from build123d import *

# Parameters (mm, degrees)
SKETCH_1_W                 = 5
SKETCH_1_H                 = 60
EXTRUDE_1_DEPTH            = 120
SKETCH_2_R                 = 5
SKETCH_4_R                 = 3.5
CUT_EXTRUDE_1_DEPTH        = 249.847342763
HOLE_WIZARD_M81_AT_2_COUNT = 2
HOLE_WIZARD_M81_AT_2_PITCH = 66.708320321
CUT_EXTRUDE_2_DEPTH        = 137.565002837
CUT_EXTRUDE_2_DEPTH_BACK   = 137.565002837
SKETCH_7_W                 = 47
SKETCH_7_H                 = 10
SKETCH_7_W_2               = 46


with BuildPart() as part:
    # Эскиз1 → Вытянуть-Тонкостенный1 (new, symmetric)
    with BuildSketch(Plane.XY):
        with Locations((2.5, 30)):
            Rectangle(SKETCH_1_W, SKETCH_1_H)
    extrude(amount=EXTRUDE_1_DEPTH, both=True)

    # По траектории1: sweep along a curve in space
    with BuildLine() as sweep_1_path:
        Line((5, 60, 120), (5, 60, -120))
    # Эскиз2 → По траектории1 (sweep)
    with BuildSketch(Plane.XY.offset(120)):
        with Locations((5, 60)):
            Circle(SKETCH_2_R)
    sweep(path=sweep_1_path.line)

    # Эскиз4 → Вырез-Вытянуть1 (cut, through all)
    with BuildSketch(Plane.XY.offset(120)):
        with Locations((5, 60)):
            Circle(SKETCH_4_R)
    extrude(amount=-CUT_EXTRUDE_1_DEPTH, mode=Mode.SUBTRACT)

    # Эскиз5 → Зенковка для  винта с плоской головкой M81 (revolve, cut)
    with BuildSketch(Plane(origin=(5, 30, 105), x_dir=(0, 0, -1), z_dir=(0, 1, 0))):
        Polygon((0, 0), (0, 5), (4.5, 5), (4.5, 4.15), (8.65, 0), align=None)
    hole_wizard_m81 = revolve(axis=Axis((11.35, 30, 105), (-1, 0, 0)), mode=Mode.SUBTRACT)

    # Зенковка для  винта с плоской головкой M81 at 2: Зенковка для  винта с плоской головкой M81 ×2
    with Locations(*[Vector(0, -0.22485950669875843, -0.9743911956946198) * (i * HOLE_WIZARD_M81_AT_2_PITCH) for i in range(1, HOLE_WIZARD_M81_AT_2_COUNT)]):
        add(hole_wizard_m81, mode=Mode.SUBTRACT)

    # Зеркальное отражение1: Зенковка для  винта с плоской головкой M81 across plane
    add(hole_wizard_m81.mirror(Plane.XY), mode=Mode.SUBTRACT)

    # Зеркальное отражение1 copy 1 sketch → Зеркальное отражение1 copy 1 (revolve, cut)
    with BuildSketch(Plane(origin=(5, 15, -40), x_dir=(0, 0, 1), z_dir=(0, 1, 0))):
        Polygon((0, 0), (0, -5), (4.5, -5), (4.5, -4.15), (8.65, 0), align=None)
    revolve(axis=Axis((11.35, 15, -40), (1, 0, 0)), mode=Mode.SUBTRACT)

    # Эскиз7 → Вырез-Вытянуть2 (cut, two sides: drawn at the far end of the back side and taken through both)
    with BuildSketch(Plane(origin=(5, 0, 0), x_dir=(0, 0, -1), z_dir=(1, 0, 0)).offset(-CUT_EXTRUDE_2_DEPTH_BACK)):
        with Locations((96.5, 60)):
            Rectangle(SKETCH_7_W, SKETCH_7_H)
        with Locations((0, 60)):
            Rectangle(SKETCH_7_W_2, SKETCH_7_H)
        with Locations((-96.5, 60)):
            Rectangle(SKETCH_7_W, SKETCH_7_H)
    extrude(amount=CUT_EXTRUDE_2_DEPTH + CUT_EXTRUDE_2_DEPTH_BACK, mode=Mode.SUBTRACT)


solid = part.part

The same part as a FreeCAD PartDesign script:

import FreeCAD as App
import Part
import Sketcher
Q = App.Units.Quantity

doc = App.newDocument("Part")
body = doc.addObject("PartDesign::Body", "Body")

sketch1 = doc.addObject("Sketcher::SketchObject", "Sketch")
body.addObject(sketch1)
sketch1.AttachmentSupport = (doc.XY_Plane, [""])
sketch1.MapMode = "FlatFace"
sketch1.addGeometry(Part.LineSegment(App.Vector(0, 60, 0), App.Vector(0, 0, 0)), False)
sketch1.addGeometry(Part.LineSegment(App.Vector(0, 0, 0), App.Vector(5, 0, 0)), False)
sketch1.addGeometry(Part.LineSegment(App.Vector(5, 0, 0), App.Vector(5, 60, 0)), False)
sketch1.addGeometry(Part.LineSegment(App.Vector(5, 60, 0), App.Vector(0, 60, 0)), False)
sketch1.addConstraint(Sketcher.Constraint("Coincident", 0, 2, 1, 1))
sketch1.addConstraint(Sketcher.Constraint("Coincident", 1, 2, 2, 1))
sketch1.addConstraint(Sketcher.Constraint("Coincident", 2, 2, 3, 1))
sketch1.addConstraint(Sketcher.Constraint("Coincident", 3, 2, 0, 1))
sketch1.addConstraint(Sketcher.Constraint("Vertical", 0))
sketch1.addConstraint(Sketcher.Constraint("Horizontal", 1))
sketch1.addConstraint(Sketcher.Constraint("Vertical", 2))
sketch1.addConstraint(Sketcher.Constraint("Horizontal", 3))
sketch1.addConstraint(Sketcher.Constraint("Coincident", 0, 2, -1, 1))
sketch1.addConstraint(Sketcher.Constraint("DistanceX", 1, 1, 1, 2, Q("5 mm")))
sketch1.addConstraint(Sketcher.Constraint("DistanceY", 0, 2, 0, 1, Q("60 mm")))
pad1 = doc.addObject("PartDesign::Pad", "Pad")
body.addObject(pad1)
pad1.Profile = sketch1
pad1.Length = 240
pad1.Midplane = True

sketch2 = doc.addObject("Sketcher::SketchObject", "Sketch001")
body.addObject(sketch2)
sketch2.AttachmentSupport = (doc.XY_Plane, [""])
sketch2.MapMode = "FlatFace"
sketch2.AttachmentOffset = App.Placement(App.Vector(0, 0, 120), App.Rotation())
sketch2.addGeometry(Part.Circle(App.Vector(5, 60, 0), App.Vector(0, 0, 1), 5), False)
sketch2.addConstraint(Sketcher.Constraint("Diameter", 0, Q("10 mm")))
sketch2.addConstraint(Sketcher.Constraint("DistanceX", -1, 1, 0, 3, Q("5 mm")))
sketch2.addConstraint(Sketcher.Constraint("DistanceY", -1, 1, 0, 3, Q("60 mm")))

sketch3 = doc.addObject("Sketcher::SketchObject", "Sketch002")
body.addObject(sketch3)
sketch3.AttachmentSupport = (doc.XZ_Plane, [""])
sketch3.MapMode = "FlatFace"
sketch3.AttachmentOffset = App.Placement(App.Vector(0, 0, -60), App.Rotation())
sketch3.addGeometry(Part.LineSegment(App.Vector(5, 120, 0), App.Vector(5, -120, 0)), False)
sketch3.addConstraint(Sketcher.Constraint("Vertical", 0))
sketch3.addConstraint(Sketcher.Constraint("DistanceY", 0, 2, 0, 1, Q("240 mm")))
sketch3.addConstraint(Sketcher.Constraint("DistanceX", -1, 1, 0, 1, Q("5 mm")))
sketch3.addConstraint(Sketcher.Constraint("DistanceY", -1, 1, 0, 1, Q("120 mm")))
doc.recompute()

additivepipe = doc.addObject("PartDesign::AdditivePipe", "AdditivePipe")
body.addObject(additivepipe)
additivepipe.Profile = sketch2
additivepipe.Spine = (sketch3, ["Edge1"])

sketch4 = doc.addObject("Sketcher::SketchObject", "Sketch003")
body.addObject(sketch4)
sketch4.AttachmentSupport = (doc.XY_Plane, [""])
sketch4.MapMode = "FlatFace"
sketch4.AttachmentOffset = App.Placement(App.Vector(0, 0, 120), App.Rotation())
sketch4.addGeometry(Part.Circle(App.Vector(5, 60, 0), App.Vector(0, 0, 1), 3.5), False)
sketch4.addConstraint(Sketcher.Constraint("Diameter", 0, Q("7 mm")))
sketch4.addConstraint(Sketcher.Constraint("DistanceX", -1, 1, 0, 3, Q("5 mm")))
sketch4.addConstraint(Sketcher.Constraint("DistanceY", -1, 1, 0, 3, Q("60 mm")))
pocket1 = doc.addObject("PartDesign::Pocket", "Pocket")
body.addObject(pocket1)
pocket1.Profile = sketch4
pocket1.Type = "ThroughAll"

sketch5 = doc.addObject("Sketcher::SketchObject", "Sketch004")
body.addObject(sketch5)
sketch5.AttachmentSupport = (doc.XZ_Plane, [""])
sketch5.MapMode = "FlatFace"
sketch5.AttachmentOffset = App.Placement(App.Vector(0, 0, -30), App.Rotation())
sketch5.addGeometry(Part.LineSegment(App.Vector(0, 105, 0), App.Vector(5, 105, 0)), False)
sketch5.addGeometry(Part.LineSegment(App.Vector(5, 105, 0), App.Vector(5, 96.3, 0)), False)
sketch5.addGeometry(Part.LineSegment(App.Vector(5, 96.3, 0), App.Vector(0.8, 100.5, 0)), False)
sketch5.addGeometry(Part.LineSegment(App.Vector(0.8, 100.5, 0), App.Vector(0, 100.5, 0)), False)
sketch5.addGeometry(Part.LineSegment(App.Vector(0, 100.5, 0), App.Vector(0, 105, 0)), False)
sketch5.addGeometry(Part.LineSegment(App.Vector(5, 105, 0), App.Vector(0, 105, 0)), True)
sketch5.addConstraint(Sketcher.Constraint("Coincident", 0, 2, 1, 1))
sketch5.addConstraint(Sketcher.Constraint("Coincident", 1, 2, 2, 1))
sketch5.addConstraint(Sketcher.Constraint("Coincident", 2, 2, 3, 1))
sketch5.addConstraint(Sketcher.Constraint("Coincident", 3, 2, 4, 1))
sketch5.addConstraint(Sketcher.Constraint("Coincident", 4, 2, 0, 1))
sketch5.addConstraint(Sketcher.Constraint("Horizontal", 0))
sketch5.addConstraint(Sketcher.Constraint("Vertical", 1))
sketch5.addConstraint(Sketcher.Constraint("Horizontal", 3))
sketch5.addConstraint(Sketcher.Constraint("Vertical", 4))
sketch5.addConstraint(Sketcher.Constraint("Horizontal", 5))
sketch5.addConstraint(Sketcher.Constraint("Coincident", 5, 1, 0, 2))
sketch5.addConstraint(Sketcher.Constraint("PointOnObject", 3, 2, -2))
sketch5.addConstraint(Sketcher.Constraint("PointOnObject", 5, 2, -2))
sketch5.addConstraint(Sketcher.Constraint("DistanceX", 0, 1, 0, 2, Q("5 mm")))
sketch5.addConstraint(Sketcher.Constraint("Angle", 2, Q("135 deg")))
sketch5.addConstraint(Sketcher.Constraint("DistanceY", 4, 1, 4, 2, Q("4.5 mm")))
sketch5.addConstraint(Sketcher.Constraint("DistanceY", -1, 1, 0, 2, Q("105 mm")))
sketch5.addConstraint(Sketcher.Constraint("DistanceX", 3, 2, 3, 1, Q("0.85 mm")))
groove = doc.addObject("PartDesign::Groove", "Groove")
body.addObject(groove)
groove.Profile = sketch5
groove.ReferenceAxis = (sketch5, ["Axis0"])
groove.Angle = 360
doc.recompute()

datumline = doc.addObject("PartDesign::Line", "DatumLine")
body.addObject(datumline)
datumline.Placement = App.Placement(App.Vector(0, 0, 0), App.Rotation(App.Vector(0, 0, 1), App.Vector(0, -0.224859507, -0.974391196)))
linearpattern = doc.addObject("PartDesign::LinearPattern", "LinearPattern")
body.addObject(linearpattern)
linearpattern.Originals = [groove]
linearpattern.Direction = (datumline, [""])
linearpattern.Mode = "offset"
linearpattern.Offset = 66.70832
linearpattern.Occurrences = 2
body.Tip = linearpattern
doc.recompute()

mirrored = doc.addObject("PartDesign::Mirrored", "Mirrored")
body.addObject(mirrored)
mirrored.Originals = [groove]
mirrored.MirrorPlane = (doc.XY_Plane, [""])
body.Tip = mirrored

sketch6 = doc.addObject("Sketcher::SketchObject", "Sketch005")
body.addObject(sketch6)
sketch6.AttachmentSupport = (doc.XZ_Plane, [""])
sketch6.MapMode = "FlatFace"
sketch6.AttachmentOffset = App.Placement(App.Vector(0, 0, -15), App.Rotation())
sketch6.addGeometry(Part.LineSegment(App.Vector(5, -40, 0), App.Vector(0, -40, 0)), False)
sketch6.addGeometry(Part.LineSegment(App.Vector(0, -40, 0), App.Vector(0, -35.5, 0)), False)
sketch6.addGeometry(Part.LineSegment(App.Vector(0, -35.5, 0), App.Vector(0.8, -35.5, 0)), False)
sketch6.addGeometry(Part.LineSegment(App.Vector(0.8, -35.5, 0), App.Vector(5, -31.4, 0)), False)
sketch6.addGeometry(Part.LineSegment(App.Vector(5, -31.4, 0), App.Vector(5, -40, 0)), False)
sketch6.addGeometry(Part.LineSegment(App.Vector(0, -40, 0), App.Vector(5, -40, 0)), True)
sketch6.addConstraint(Sketcher.Constraint("Coincident", 0, 2, 1, 1))
sketch6.addConstraint(Sketcher.Constraint("Coincident", 1, 2, 2, 1))
sketch6.addConstraint(Sketcher.Constraint("Coincident", 2, 2, 3, 1))
sketch6.addConstraint(Sketcher.Constraint("Coincident", 3, 2, 4, 1))
sketch6.addConstraint(Sketcher.Constraint("Coincident", 4, 2, 0, 1))
sketch6.addConstraint(Sketcher.Constraint("Horizontal", 0))
sketch6.addConstraint(Sketcher.Constraint("Vertical", 1))
sketch6.addConstraint(Sketcher.Constraint("Horizontal", 2))
sketch6.addConstraint(Sketcher.Constraint("Vertical", 4))
sketch6.addConstraint(Sketcher.Constraint("Horizontal", 5))
sketch6.addConstraint(Sketcher.Constraint("Coincident", 5, 1, 0, 2))
sketch6.addConstraint(Sketcher.Constraint("PointOnObject", 0, 2, -2))
sketch6.addConstraint(Sketcher.Constraint("Vertical", 3, 2, 5, 2))
sketch6.addConstraint(Sketcher.Constraint("DistanceX", 0, 2, 0, 1, Q("5 mm")))
sketch6.addConstraint(Sketcher.Constraint("Angle", 3, Q("45 deg")))
sketch6.addConstraint(Sketcher.Constraint("DistanceY", 1, 1, 1, 2, Q("4.5 mm")))
sketch6.addConstraint(Sketcher.Constraint("DistanceY", 0, 2, -1, 1, Q("40 mm")))
sketch6.addConstraint(Sketcher.Constraint("DistanceX", 2, 1, 2, 2, Q("0.85 mm")))
groove2 = doc.addObject("PartDesign::Groove", "Groove001")
body.addObject(groove2)
groove2.Profile = sketch6
groove2.ReferenceAxis = (sketch6, ["Axis0"])
groove2.Angle = 360

sketch7 = doc.addObject("Sketcher::SketchObject", "Sketch006")
body.addObject(sketch7)
sketch7.AttachmentSupport = (doc.YZ_Plane, [""])
sketch7.MapMode = "FlatFace"
sketch7.AttachmentOffset = App.Placement(App.Vector(0, 0, 5), App.Rotation())
sketch7.addGeometry(Part.LineSegment(App.Vector(65, -73, 0), App.Vector(55, -73, 0)), False)
sketch7.addGeometry(Part.LineSegment(App.Vector(55, -73, 0), App.Vector(55, -120, 0)), False)
sketch7.addGeometry(Part.LineSegment(App.Vector(55, -120, 0), App.Vector(65, -120, 0)), False)
sketch7.addGeometry(Part.LineSegment(App.Vector(65, -120, 0), App.Vector(65, -73, 0)), False)
sketch7.addGeometry(Part.LineSegment(App.Vector(65, 23, 0), App.Vector(55, 23, 0)), False)
sketch7.addGeometry(Part.LineSegment(App.Vector(55, 23, 0), App.Vector(55, -23, 0)), False)
sketch7.addGeometry(Part.LineSegment(App.Vector(55, -23, 0), App.Vector(65, -23, 0)), False)
sketch7.addGeometry(Part.LineSegment(App.Vector(65, -23, 0), App.Vector(65, 23, 0)), False)
sketch7.addGeometry(Part.LineSegment(App.Vector(65, 120, 0), App.Vector(55, 120, 0)), False)
sketch7.addGeometry(Part.LineSegment(App.Vector(55, 120, 0), App.Vector(55, 73, 0)), False)
sketch7.addGeometry(Part.LineSegment(App.Vector(55, 73, 0), App.Vector(65, 73, 0)), False)
sketch7.addGeometry(Part.LineSegment(App.Vector(65, 73, 0), App.Vector(65, 120, 0)), False)
sketch7.addConstraint(Sketcher.Constraint("Coincident", 0, 2, 1, 1))
sketch7.addConstraint(Sketcher.Constraint("Coincident", 1, 2, 2, 1))
sketch7.addConstraint(Sketcher.Constraint("Coincident", 2, 2, 3, 1))
sketch7.addConstraint(Sketcher.Constraint("Coincident", 3, 2, 0, 1))
sketch7.addConstraint(Sketcher.Constraint("Coincident", 4, 2, 5, 1))
sketch7.addConstraint(Sketcher.Constraint("Coincident", 5, 2, 6, 1))
sketch7.addConstraint(Sketcher.Constraint("Coincident", 6, 2, 7, 1))
sketch7.addConstraint(Sketcher.Constraint("Coincident", 7, 2, 4, 1))
sketch7.addConstraint(Sketcher.Constraint("Coincident", 8, 2, 9, 1))
sketch7.addConstraint(Sketcher.Constraint("Coincident", 9, 2, 10, 1))
sketch7.addConstraint(Sketcher.Constraint("Coincident", 10, 2, 11, 1))
sketch7.addConstraint(Sketcher.Constraint("Coincident", 11, 2, 8, 1))
sketch7.addConstraint(Sketcher.Constraint("Horizontal", 0))
sketch7.addConstraint(Sketcher.Constraint("Vertical", 1))
sketch7.addConstraint(Sketcher.Constraint("Horizontal", 2))
sketch7.addConstraint(Sketcher.Constraint("Vertical", 3))
sketch7.addConstraint(Sketcher.Constraint("Horizontal", 4))
sketch7.addConstraint(Sketcher.Constraint("Vertical", 5))
sketch7.addConstraint(Sketcher.Constraint("Horizontal", 6))
sketch7.addConstraint(Sketcher.Constraint("Vertical", 7))
sketch7.addConstraint(Sketcher.Constraint("Horizontal", 8))
sketch7.addConstraint(Sketcher.Constraint("Vertical", 9))
sketch7.addConstraint(Sketcher.Constraint("Horizontal", 10))
sketch7.addConstraint(Sketcher.Constraint("Vertical", 11))
sketch7.addConstraint(Sketcher.Constraint("Symmetric", 1, 2, 8, 2, -1))
sketch7.addConstraint(Sketcher.Constraint("Symmetric", 3, 2, 10, 2, -1))
sketch7.addConstraint(Sketcher.Constraint("Vertical", 1, 2, 4, 2))
sketch7.addConstraint(Sketcher.Constraint("Vertical", 3, 2, 6, 2))
sketch7.addConstraint(Sketcher.Constraint("DistanceX", 0, 2, 0, 1, Q("10 mm")))
sketch7.addConstraint(Sketcher.Constraint("DistanceY", 1, 2, 1, 1, Q("47 mm")))
sketch7.addConstraint(Sketcher.Constraint("DistanceY", 5, 2, 5, 1, Q("46 mm")))
sketch7.addConstraint(Sketcher.Constraint("DistanceX", -1, 1, 0, 2, Q("55 mm")))
sketch7.addConstraint(Sketcher.Constraint("DistanceY", 0, 2, -1, 1, Q("73 mm")))
sketch7.addConstraint(Sketcher.Constraint("DistanceY", -1, 1, 4, 2, Q("23 mm")))
pocket2 = doc.addObject("PartDesign::Pocket", "Pocket001")
body.addObject(pocket2)
pocket2.Profile = sketch7
pocket2.Type = "ThroughAll"
pocket2.Midplane = True

doc.recompute()
